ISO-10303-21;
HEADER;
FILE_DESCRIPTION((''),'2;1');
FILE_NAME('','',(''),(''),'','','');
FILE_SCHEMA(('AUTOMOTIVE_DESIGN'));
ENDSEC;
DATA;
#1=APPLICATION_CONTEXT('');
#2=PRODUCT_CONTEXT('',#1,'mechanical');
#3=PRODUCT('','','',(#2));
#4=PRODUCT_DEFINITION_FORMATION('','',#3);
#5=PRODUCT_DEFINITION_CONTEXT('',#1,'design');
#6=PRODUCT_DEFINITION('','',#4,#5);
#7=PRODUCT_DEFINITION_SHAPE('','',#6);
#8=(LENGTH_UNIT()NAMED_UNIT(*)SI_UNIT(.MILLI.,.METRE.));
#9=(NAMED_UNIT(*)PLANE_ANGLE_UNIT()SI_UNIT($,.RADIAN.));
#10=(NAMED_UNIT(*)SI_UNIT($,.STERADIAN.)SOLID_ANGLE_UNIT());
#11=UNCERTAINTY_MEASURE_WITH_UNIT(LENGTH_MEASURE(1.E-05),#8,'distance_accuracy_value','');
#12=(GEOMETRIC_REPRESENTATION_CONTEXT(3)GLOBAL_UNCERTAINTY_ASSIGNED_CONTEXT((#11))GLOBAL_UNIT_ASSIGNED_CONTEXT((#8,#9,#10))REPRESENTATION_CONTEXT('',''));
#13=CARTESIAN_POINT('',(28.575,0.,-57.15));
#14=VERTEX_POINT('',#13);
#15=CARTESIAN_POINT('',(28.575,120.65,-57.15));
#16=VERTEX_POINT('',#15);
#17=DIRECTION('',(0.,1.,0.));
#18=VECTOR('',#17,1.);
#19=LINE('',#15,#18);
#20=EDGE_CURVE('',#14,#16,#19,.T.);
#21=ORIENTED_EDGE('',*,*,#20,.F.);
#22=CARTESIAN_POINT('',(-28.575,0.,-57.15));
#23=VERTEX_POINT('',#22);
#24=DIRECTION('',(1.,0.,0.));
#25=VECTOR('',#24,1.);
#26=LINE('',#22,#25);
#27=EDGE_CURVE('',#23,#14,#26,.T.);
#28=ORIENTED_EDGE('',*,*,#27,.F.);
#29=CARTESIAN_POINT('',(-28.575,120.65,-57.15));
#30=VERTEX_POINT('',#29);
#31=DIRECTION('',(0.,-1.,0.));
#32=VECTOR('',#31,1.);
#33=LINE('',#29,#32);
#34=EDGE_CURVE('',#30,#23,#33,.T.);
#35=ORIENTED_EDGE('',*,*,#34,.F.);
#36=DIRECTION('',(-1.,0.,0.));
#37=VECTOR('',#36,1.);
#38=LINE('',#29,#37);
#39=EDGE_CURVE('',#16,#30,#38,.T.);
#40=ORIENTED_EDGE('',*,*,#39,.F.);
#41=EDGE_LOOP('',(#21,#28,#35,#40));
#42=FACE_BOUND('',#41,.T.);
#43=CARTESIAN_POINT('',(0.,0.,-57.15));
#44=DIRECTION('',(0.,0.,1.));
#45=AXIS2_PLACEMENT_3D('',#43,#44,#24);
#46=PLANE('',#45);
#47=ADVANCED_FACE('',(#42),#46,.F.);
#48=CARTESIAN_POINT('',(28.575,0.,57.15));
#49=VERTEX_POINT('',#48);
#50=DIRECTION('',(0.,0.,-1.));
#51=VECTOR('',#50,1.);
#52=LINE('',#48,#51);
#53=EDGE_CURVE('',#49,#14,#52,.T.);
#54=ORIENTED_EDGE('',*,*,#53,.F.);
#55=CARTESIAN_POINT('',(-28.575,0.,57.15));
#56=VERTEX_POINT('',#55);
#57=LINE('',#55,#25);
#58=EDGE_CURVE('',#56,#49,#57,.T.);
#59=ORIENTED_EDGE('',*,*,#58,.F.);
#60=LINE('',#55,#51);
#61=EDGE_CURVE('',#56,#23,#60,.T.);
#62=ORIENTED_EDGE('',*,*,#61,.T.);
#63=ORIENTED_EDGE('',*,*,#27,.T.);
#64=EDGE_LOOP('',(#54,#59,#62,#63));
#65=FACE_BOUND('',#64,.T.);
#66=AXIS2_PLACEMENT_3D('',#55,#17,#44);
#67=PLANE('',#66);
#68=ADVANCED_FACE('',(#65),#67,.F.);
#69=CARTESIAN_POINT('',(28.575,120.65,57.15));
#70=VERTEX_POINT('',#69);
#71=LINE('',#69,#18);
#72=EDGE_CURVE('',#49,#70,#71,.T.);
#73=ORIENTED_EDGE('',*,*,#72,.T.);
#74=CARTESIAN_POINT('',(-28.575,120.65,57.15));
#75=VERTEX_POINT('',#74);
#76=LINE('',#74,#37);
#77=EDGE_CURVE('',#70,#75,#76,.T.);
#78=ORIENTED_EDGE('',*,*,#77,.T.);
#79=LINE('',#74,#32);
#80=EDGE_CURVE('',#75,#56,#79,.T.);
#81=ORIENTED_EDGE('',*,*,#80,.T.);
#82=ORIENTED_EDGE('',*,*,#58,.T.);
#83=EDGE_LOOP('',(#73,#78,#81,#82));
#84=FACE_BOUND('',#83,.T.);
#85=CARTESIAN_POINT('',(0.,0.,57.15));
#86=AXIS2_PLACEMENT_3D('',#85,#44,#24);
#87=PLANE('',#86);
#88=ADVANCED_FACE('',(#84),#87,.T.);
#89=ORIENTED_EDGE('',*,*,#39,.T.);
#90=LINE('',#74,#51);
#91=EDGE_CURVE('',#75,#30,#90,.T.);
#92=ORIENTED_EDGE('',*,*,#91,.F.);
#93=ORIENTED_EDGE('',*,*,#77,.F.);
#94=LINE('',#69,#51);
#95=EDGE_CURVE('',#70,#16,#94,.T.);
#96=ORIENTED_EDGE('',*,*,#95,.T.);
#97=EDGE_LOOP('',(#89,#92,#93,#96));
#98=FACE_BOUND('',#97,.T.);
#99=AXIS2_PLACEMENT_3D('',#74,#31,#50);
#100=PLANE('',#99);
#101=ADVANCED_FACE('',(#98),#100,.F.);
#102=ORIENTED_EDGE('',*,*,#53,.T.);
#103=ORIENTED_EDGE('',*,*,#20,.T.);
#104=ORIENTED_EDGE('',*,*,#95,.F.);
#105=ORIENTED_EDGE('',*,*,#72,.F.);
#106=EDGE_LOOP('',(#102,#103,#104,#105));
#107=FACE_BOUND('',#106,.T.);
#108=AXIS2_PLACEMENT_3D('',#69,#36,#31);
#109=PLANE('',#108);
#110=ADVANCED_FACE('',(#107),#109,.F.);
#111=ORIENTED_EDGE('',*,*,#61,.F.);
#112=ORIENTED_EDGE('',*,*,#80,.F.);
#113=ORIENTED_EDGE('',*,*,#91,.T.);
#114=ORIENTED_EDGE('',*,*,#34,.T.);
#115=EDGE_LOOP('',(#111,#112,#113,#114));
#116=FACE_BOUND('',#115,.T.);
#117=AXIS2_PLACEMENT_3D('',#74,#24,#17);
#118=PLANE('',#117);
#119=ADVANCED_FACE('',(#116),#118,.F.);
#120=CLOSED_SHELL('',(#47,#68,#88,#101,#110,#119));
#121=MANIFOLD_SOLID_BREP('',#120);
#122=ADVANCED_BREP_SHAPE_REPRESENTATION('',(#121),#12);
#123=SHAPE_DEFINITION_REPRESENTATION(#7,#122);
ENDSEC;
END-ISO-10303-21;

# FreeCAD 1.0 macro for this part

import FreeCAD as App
import Part
import Sketcher
from FreeCAD import Vector
Q = App.Units.Quantity


def add_polygon(sketch, points):
    """Adds a closed chain of lines whose ends are joined by coincident constraints."""
    first, n = sketch.GeometryCount, len(points)
    for a, b in zip(points, points[1:] + points[:1]):
        sketch.addGeometry(Part.LineSegment(App.Vector(*a, 0), App.Vector(*b, 0)), False)
    for i in range(n):
        sketch.addConstraint(Sketcher.Constraint("Coincident", first + i, 2, first + (i + 1) % n, 1))

doc = App.newDocument("Part")
body = doc.addObject("PartDesign::Body", "Body")

# Sketch on XY plane
sketch1 = body.newObject("Sketcher::SketchObject", "Sketch")
sketch1.AttachmentSupport = (doc.getObject("XY_Plane"), [""])
sketch1.MapMode = "FlatFace"
add_polygon(sketch1, [(-29, 121), (-29, 0), (29, 0), (29, 121)])  # lines 0-3
sketch1.addConstraint([
    Sketcher.Constraint("Vertical", 0),
    Sketcher.Constraint("Horizontal", 1),
    Sketcher.Constraint("Vertical", 2),
    Sketcher.Constraint("Horizontal", 3),
    Sketcher.Constraint("Symmetric", 0, 2, 1, 2, -1, 1),
    Sketcher.Constraint("DistanceX", 1, 1, 1, 2, Q("2.25 in")),
    Sketcher.Constraint("DistanceY", 0, 2, 0, 1, Q("4.75 in")),
])
pad1 = body.newObject("PartDesign::Pad", "Pad")
pad1.Profile = sketch1
pad1.Length = Q("4.5 in")
pad1.Midplane = True

doc.recompute()
